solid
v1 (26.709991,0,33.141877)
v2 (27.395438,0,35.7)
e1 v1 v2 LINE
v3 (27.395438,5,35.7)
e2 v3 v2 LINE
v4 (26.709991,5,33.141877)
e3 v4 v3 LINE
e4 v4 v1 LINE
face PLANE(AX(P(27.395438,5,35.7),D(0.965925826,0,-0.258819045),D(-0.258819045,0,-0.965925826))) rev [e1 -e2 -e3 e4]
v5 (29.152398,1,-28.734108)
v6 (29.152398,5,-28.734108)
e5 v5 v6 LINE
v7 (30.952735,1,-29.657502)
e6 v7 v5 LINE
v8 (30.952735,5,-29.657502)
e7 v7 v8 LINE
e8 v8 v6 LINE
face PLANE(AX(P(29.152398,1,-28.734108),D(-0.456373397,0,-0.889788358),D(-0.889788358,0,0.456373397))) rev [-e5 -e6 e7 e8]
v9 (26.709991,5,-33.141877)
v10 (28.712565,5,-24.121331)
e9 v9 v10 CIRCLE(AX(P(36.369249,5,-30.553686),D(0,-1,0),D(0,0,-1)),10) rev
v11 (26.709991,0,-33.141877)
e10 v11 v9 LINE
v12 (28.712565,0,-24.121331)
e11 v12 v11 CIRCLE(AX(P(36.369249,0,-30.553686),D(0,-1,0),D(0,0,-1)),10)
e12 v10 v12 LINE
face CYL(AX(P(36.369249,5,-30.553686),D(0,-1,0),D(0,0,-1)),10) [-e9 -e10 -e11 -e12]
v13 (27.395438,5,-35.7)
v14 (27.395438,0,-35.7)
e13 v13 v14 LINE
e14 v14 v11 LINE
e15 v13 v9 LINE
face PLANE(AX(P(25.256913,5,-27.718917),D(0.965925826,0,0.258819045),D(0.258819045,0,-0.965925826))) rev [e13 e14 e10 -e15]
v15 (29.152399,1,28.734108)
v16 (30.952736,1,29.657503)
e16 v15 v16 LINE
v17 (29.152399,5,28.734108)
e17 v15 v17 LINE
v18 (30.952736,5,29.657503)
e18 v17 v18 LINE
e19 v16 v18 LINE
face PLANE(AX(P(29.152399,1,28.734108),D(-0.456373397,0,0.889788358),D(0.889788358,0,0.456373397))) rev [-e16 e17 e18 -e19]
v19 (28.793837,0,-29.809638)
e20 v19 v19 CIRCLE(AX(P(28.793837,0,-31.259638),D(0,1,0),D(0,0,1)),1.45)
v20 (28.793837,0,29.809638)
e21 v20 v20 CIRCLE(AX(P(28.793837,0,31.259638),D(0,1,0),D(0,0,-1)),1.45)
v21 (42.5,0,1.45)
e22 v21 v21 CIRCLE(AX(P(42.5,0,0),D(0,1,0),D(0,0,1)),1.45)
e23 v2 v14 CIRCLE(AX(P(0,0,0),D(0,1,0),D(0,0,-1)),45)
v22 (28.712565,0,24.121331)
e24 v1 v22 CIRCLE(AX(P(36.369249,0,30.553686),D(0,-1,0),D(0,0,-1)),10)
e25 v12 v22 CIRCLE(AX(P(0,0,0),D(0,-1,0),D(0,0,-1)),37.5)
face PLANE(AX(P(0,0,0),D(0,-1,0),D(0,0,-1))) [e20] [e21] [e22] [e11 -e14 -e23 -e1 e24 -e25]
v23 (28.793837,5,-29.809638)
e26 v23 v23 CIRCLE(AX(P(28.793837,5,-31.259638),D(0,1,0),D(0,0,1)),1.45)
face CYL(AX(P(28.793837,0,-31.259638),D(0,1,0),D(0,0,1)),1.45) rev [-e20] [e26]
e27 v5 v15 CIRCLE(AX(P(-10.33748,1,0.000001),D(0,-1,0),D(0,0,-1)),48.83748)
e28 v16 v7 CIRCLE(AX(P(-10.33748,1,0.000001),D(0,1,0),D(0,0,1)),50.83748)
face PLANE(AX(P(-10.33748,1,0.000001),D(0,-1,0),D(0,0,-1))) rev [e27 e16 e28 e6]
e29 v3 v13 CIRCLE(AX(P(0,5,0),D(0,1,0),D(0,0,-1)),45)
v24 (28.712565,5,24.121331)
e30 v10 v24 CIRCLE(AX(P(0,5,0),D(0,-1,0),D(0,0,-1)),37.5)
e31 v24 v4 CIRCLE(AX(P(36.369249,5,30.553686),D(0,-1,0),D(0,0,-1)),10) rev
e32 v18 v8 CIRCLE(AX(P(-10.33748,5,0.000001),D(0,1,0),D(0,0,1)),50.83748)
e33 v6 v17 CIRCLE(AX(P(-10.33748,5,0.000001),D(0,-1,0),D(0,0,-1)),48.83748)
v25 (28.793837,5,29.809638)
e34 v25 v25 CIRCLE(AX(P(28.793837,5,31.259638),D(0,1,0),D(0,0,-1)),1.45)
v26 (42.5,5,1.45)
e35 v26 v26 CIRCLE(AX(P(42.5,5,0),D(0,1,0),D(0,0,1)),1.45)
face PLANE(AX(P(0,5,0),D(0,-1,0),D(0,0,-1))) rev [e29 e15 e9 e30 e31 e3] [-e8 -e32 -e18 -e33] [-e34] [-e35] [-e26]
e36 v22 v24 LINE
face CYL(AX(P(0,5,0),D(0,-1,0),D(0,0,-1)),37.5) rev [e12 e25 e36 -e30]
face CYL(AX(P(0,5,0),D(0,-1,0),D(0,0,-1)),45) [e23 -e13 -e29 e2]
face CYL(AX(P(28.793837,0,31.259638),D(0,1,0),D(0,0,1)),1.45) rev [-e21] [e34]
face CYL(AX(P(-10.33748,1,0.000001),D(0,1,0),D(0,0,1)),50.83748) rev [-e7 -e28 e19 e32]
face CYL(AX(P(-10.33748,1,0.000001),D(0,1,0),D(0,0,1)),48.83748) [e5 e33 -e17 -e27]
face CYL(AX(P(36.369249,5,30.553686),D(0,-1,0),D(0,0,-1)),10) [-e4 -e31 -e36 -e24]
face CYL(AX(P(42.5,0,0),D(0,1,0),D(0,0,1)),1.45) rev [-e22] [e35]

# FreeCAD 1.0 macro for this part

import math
import FreeCAD as App
import Part
import Sketcher
from FreeCAD import Vector
Q = App.Units.Quantity


def edges_at(feature, points):
    """Names of the edges that pass closest to the given points."""
    edges = feature.Shape.Edges
    near = lambda p: min(range(len(edges)), key=lambda i: edges[i].distToShape(Part.Vertex(*p))[0])
    return sorted({f"Edge{near(p) + 1}" for p in points})

doc = App.newDocument("Part")
body = doc.addObject("PartDesign::Body", "Body")

sketch1 = body.newObject("Sketcher::SketchObject", "Sketch")
sketch1.AttachmentSupport = (doc.getObject("XZ_Plane"), [""])
sketch1.MapMode = "FlatFace"
sketch1.addGeometry(Part.LineSegment(Vector(27, -36, 0), Vector(25, -28, 0)), False)
sketch1.addGeometry(Part.ArcOfCircle(Part.Circle(Vector(0, 0, 0), Vector(0, 0, 1), 38), math.radians(-48), math.radians(48)), False)
sketch1.addGeometry(Part.LineSegment(Vector(25, 28, 0), Vector(27, 36, 0)), False)
sketch1.addGeometry(Part.ArcOfCircle(Part.Circle(Vector(0, 0, 0), Vector(0, 0, 1), 45), math.radians(-52), math.radians(52)), False)
sketch1.addConstraint(Sketcher.Constraint("Coincident", 0, 2, 1, 1))
sketch1.addConstraint(Sketcher.Constraint("Coincident", 1, 2, 2, 1))
sketch1.addConstraint(Sketcher.Constraint("Coincident", 2, 2, 3, 2))
sketch1.addConstraint(Sketcher.Constraint("Coincident", 3, 1, 0, 1))
sketch1.addConstraint(Sketcher.Constraint("Coincident", 1, 3, -1, 1))
sketch1.addConstraint(Sketcher.Constraint("Coincident", 3, 3, -1, 1))
sketch1.addConstraint(Sketcher.Constraint("Vertical", 0, 2, 1, 2))
sketch1.addConstraint(Sketcher.Constraint("Vertical", 2, 2, 3, 1))
sketch1.addConstraint(Sketcher.Constraint("Radius", 3, 45.0))
sketch1.addConstraint(Sketcher.Constraint("Radius", 1, 37.5))
sketch1.addConstraint(Sketcher.Constraint("Angle", 0, Q("105 deg")))
sketch1.addConstraint(Sketcher.Constraint("DistanceY", -1, 1, 2, 2, 35.7))
pad1 = body.newObject("PartDesign::Pad", "Pad")
pad1.Profile = sketch1
pad1.Length = 5
pad1.Reversed = True

sketch2 = body.newObject("Sketcher::SketchObject", "Sketch001")
sketch2.AttachmentSupport = (doc.getObject("XZ_Plane"), [""])
sketch2.MapMode = "FlatFace"
sketch2.AttachmentOffset = App.Placement(Vector(0, 0, -5), App.Rotation())
sketch2.addGeometry(Part.Circle(Vector(42.5, 0, 0), Vector(0, 0, 1), 1.4), False)
sketch2.addGeometry(Part.Circle(Vector(28.8, -31.3, 0), Vector(0, 0, 1), 1.4), False)
sketch2.addGeometry(Part.Circle(Vector(28.8, 31.3, 0), Vector(0, 0, 1), 1.4), False)
sketch2.addConstraint(Sketcher.Constraint("Equal", 0, 1))
sketch2.addConstraint(Sketcher.Constraint("Equal", 1, 2))
sketch2.addConstraint(Sketcher.Constraint("Symmetric", 1, 3, 2, 3, -1))
sketch2.addConstraint(Sketcher.Constraint("PointOnObject", 0, 3, -1))
sketch2.addConstraint(Sketcher.Constraint("Diameter", 0, 2.9))
sketch2.addConstraint(Sketcher.Constraint("DistanceX", -1, 1, 0, 3, 42.5))
sketch2.addConstraint(Sketcher.Constraint("DistanceY", 1, 3, -1, 1, 31.259638))
sketch2.addConstraint(Sketcher.Constraint("DistanceX", -1, 1, 1, 3, 28.793837))
pocket1 = body.newObject("PartDesign::Pocket", "Pocket")
pocket1.Profile = sketch2
pocket1.Length = 5
pocket1.Reversed = True

sketch3 = body.newObject("Sketcher::SketchObject", "Sketch002")
sketch3.AttachmentSupport = (doc.getObject("XZ_Plane"), [""])
sketch3.MapMode = "FlatFace"
sketch3.AttachmentOffset = App.Placement(Vector(0, 0, -5), App.Rotation())
sketch3.addGeometry(Part.LineSegment(Vector(31, -29.7, 0), Vector(29.2, -28.7, 0)), False)
sketch3.addGeometry(Part.ArcOfCircle(Part.Circle(Vector(-10.3, 0, 0), Vector(0, 0, 1), 48.8), math.radians(-36), math.radians(36)), False)
sketch3.addGeometry(Part.LineSegment(Vector(29.2, 28.7, 0), Vector(31, 29.7, 0)), False)
sketch3.addGeometry(Part.ArcOfCircle(Part.Circle(Vector(-10.3, 0, 0), Vector(0, 0, 1), 50.8), math.radians(-36), math.radians(36)), False)
sketch3.addConstraint(Sketcher.Constraint("Coincident", 0, 2, 1, 1))
sketch3.addConstraint(Sketcher.Constraint("Coincident", 1, 2, 2, 1))
sketch3.addConstraint(Sketcher.Constraint("Coincident", 2, 2, 3, 2))
sketch3.addConstraint(Sketcher.Constraint("Coincident", 3, 1, 0, 1))
sketch3.addConstraint(Sketcher.Constraint("Coincident", 3, 3, 1, 3))
sketch3.addConstraint(Sketcher.Constraint("Symmetric", 0, 2, 1, 2, -1))
sketch3.addConstraint(Sketcher.Constraint("Vertical", 2, 2, 3, 1))
sketch3.addConstraint(Sketcher.Constraint("Radius", 1, 48.83748))
sketch3.addConstraint(Sketcher.Constraint("Radius", 3, 50.83748))
sketch3.addConstraint(Sketcher.Constraint("DistanceX", -1, 1, 1, 2, 29.152399))
sketch3.addConstraint(Sketcher.Constraint("DistanceY", 1, 3, 2, 2, 29.657502))
sketch3.addConstraint(Sketcher.Constraint("Distance", 0, 2.023332))
pocket2 = body.newObject("PartDesign::Pocket", "Pocket001")
pocket2.Profile = sketch3
pocket2.Length = 4
pocket2.Reversed = True
doc.recompute()

fillet = body.newObject("PartDesign::Fillet", "Fillet")
fillet.Base = (pocket2, edges_at(pocket2, [(25.257, 2.5, 27.719), (25.257, 2.5, -27.719)]))
fillet.Radius = 10

doc.recompute()
